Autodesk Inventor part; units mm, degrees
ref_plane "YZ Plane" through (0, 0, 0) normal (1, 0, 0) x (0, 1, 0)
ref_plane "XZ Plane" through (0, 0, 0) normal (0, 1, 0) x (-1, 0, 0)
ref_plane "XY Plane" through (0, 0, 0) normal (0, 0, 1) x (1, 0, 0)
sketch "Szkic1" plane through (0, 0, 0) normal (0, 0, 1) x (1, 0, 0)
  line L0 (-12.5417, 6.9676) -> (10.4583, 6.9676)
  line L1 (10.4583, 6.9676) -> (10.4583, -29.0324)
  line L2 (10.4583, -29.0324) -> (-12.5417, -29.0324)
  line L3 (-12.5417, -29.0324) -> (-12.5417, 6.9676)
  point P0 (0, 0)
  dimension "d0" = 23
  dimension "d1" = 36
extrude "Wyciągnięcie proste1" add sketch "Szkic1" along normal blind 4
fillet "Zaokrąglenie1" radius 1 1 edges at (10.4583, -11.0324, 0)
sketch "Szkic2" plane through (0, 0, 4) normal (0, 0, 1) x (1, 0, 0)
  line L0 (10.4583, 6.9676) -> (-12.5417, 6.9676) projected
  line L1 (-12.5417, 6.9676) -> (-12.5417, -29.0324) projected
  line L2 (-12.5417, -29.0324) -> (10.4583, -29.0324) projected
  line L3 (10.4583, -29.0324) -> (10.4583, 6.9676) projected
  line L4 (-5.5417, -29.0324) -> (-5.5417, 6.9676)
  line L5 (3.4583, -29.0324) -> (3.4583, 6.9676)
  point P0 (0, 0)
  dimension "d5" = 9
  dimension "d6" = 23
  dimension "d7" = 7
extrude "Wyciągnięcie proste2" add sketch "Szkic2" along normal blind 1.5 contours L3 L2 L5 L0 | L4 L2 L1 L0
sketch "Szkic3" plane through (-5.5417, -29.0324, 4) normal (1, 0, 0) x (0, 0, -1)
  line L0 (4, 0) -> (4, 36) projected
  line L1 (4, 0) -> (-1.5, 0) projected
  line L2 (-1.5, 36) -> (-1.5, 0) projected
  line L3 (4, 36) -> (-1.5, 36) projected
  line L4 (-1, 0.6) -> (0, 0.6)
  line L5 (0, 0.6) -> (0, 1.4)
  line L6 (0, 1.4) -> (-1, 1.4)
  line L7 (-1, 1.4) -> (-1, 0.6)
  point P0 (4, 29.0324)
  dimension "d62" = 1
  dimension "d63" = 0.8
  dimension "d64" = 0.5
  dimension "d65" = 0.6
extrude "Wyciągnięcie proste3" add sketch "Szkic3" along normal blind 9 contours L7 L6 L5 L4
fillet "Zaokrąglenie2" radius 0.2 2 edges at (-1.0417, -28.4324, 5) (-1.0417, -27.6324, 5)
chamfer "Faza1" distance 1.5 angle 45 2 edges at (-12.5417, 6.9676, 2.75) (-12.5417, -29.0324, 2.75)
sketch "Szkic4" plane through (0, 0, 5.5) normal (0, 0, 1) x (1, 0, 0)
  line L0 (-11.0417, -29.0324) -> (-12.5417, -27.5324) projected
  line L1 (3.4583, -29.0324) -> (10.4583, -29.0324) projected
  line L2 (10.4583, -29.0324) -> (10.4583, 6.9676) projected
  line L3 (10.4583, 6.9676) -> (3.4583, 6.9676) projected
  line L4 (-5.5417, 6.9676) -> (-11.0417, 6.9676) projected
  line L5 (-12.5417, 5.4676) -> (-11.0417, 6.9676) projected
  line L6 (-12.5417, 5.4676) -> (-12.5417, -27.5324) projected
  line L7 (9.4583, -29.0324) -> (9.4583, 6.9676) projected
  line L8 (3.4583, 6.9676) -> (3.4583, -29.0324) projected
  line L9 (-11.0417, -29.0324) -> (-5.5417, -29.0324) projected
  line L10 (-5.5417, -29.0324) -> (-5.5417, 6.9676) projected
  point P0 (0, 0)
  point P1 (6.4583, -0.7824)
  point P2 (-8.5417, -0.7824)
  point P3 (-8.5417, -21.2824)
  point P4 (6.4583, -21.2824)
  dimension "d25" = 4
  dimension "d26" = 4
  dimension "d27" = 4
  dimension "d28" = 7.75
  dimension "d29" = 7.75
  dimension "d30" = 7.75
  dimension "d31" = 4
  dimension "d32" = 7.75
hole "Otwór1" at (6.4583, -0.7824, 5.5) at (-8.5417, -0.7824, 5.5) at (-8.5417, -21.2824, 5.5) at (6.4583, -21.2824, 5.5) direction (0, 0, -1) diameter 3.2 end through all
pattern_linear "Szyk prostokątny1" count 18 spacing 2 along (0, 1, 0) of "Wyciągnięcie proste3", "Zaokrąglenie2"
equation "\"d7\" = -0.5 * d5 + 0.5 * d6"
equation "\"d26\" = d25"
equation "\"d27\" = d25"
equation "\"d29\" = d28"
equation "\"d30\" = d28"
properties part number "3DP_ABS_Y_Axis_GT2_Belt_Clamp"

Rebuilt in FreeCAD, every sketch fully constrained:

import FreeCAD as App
import Part
import Sketcher
from FreeCAD import Vector
Q = App.Units.Quantity


def edges_at(feature, points):
    """Names of the edges that pass closest to the given points."""
    edges = feature.Shape.Edges
    near = lambda p: min(range(len(edges)), key=lambda i: edges[i].distToShape(Part.Vertex(*p))[0])
    return sorted({f"Edge{near(p) + 1}" for p in points})


def add_polygon(sketch, points):
    """Adds a closed chain of lines whose ends are joined by coincident constraints."""
    first, n = sketch.GeometryCount, len(points)
    for a, b in zip(points, points[1:] + points[:1]):
        sketch.addGeometry(Part.LineSegment(App.Vector(*a, 0), App.Vector(*b, 0)), False)
    for i in range(n):
        sketch.addConstraint(Sketcher.Constraint("Coincident", first + i, 2, first + (i + 1) % n, 1))

doc = App.newDocument("Part")
body = doc.addObject("PartDesign::Body", "Body")

# Sketch on XY plane
sketch1 = body.newObject("Sketcher::SketchObject", "Sketch")
sketch1.AttachmentSupport = (doc.getObject("XY_Plane"), [""])
sketch1.MapMode = "FlatFace"
add_polygon(sketch1, [(10, 7), (-13, 7), (-13, -29), (10, -29)])  # lines 0-3
sketch1.addConstraint(Sketcher.Constraint("Horizontal", 0))
sketch1.addConstraint(Sketcher.Constraint("Vertical", 1))
sketch1.addConstraint(Sketcher.Constraint("Horizontal", 2))
sketch1.addConstraint(Sketcher.Constraint("Vertical", 3))
sketch1.addConstraint(Sketcher.Constraint("DistanceX", 0, 2, 0, 1, Q("23 mm")))
sketch1.addConstraint(Sketcher.Constraint("DistanceY", 1, 2, 1, 1, Q("36 mm")))
sketch1.addConstraint(Sketcher.Constraint("DistanceX", 0, 2, -1, 1, Q("12.5417 mm")))
sketch1.addConstraint(Sketcher.Constraint("DistanceY", -1, 1, 0, 2, Q("6.9676 mm")))
pad1 = body.newObject("PartDesign::Pad", "Pad")
pad1.Profile = sketch1
pad1.Length = 4
doc.recompute()

fillet = body.newObject("PartDesign::Fillet", "Fillet")
fillet.Base = (pad1, edges_at(pad1, [(10.458, -11.032, 0)]))
fillet.Radius = 1

# Sketch on XY plane
sketch2 = body.newObject("Sketcher::SketchObject", "Sketch001")
sketch2.AttachmentSupport = (doc.getObject("XY_Plane"), [""])
sketch2.MapMode = "FlatFace"
sketch2.AttachmentOffset = App.Placement(Vector(0, 0, 4), App.Rotation())
add_polygon(sketch2, [(10, -29), (10, 7), (3, 7), (3, -29)])  # lines 0-3
add_polygon(sketch2, [(-6, -29), (-6, 7), (-13, 7), (-13, -29)])  # lines 4-7
sketch2.addConstraint(Sketcher.Constraint("Vertical", 0))
sketch2.addConstraint(Sketcher.Constraint("Horizontal", 1))
sketch2.addConstraint(Sketcher.Constraint("Vertical", 2))
sketch2.addConstraint(Sketcher.Constraint("Horizontal", 3))
sketch2.addConstraint(Sketcher.Constraint("Vertical", 4))
sketch2.addConstraint(Sketcher.Constraint("Horizontal", 5))
sketch2.addConstraint(Sketcher.Constraint("Vertical", 6))
sketch2.addConstraint(Sketcher.Constraint("Horizontal", 7))
sketch2.addConstraint(Sketcher.Constraint("Horizontal", 1, 2, 4, 2))
sketch2.addConstraint(Sketcher.Constraint("Horizontal", 3, 2, 6, 2))
sketch2.addConstraint(Sketcher.Constraint("Equal", 3, 5))
sketch2.addConstraint(Sketcher.Constraint("DistanceX", 1, 2, 1, 1, Q("7 mm")))
sketch2.addConstraint(Sketcher.Constraint("DistanceX", 4, 2, 1, 2, Q("9 mm")))
sketch2.addConstraint(Sketcher.Constraint("DistanceY", 0, 1, 0, 2, Q("36 mm")))
sketch2.addConstraint(Sketcher.Constraint("DistanceX", -1, 1, 0, 2, Q("10.4583 mm")))
sketch2.addConstraint(Sketcher.Constraint("DistanceY", -1, 1, 0, 2, Q("6.9676 mm")))
pad2 = body.newObject("PartDesign::Pad", "Pad001")
pad2.Profile = sketch2
pad2.Length = 1.5

# Sketch on YZ plane
sketch3 = body.newObject("Sketcher::SketchObject", "Sketch002")
sketch3.AttachmentSupport = (doc.getObject("YZ_Plane"), [""])
sketch3.MapMode = "FlatFace"
sketch3.AttachmentOffset = App.Placement(Vector(0, 0, -5.5417), App.Rotation())
add_polygon(sketch3, [(-27.6, 5), (-28.4, 5), (-28.4, 4), (-27.6, 4)])  # lines 0-3
sketch3.addConstraint(Sketcher.Constraint("Horizontal", 0))
sketch3.addConstraint(Sketcher.Constraint("Vertical", 1))
sketch3.addConstraint(Sketcher.Constraint("Horizontal", 2))
sketch3.addConstraint(Sketcher.Constraint("Vertical", 3))
sketch3.addConstraint(Sketcher.Constraint("DistanceY", 1, 2, 1, 1, Q("1 mm")))
sketch3.addConstraint(Sketcher.Constraint("DistanceX", 0, 2, 0, 1, Q("0.8 mm")))
sketch3.addConstraint(Sketcher.Constraint("DistanceY", -1, 1, 0, 2, Q("5 mm")))
sketch3.addConstraint(Sketcher.Constraint("DistanceX", 0, 2, -1, 1, Q("28.4324 mm")))
pad3 = body.newObject("PartDesign::Pad", "Pad002")
pad3.Profile = sketch3
pad3.Length = 9
doc.recompute()

fillet2 = body.newObject("PartDesign::Fillet", "Fillet001")
fillet2.Base = (pad3, edges_at(pad3, [(-1.042, -28.432, 5), (-1.042, -27.632, 5)]))
fillet2.Radius = 0.2
doc.recompute()

chamfer = body.newObject("PartDesign::Chamfer", "Chamfer")
chamfer.Base = (fillet2, edges_at(fillet2, [(-12.542, 6.968, 2.75), (-12.542, -29.032, 2.75)]))
chamfer.Size = 1.5

# Sketch on XY plane
sketch4 = body.newObject("Sketcher::SketchObject", "Sketch003")
sketch4.AttachmentSupport = (doc.getObject("XY_Plane"), [""])
sketch4.MapMode = "FlatFace"
sketch4.AttachmentOffset = App.Placement(Vector(0, 0, 5.5), App.Rotation())
sketch4.addGeometry(Part.Circle(Vector(6.5, -0.8, 0), Vector(0, 0, 1), 1.6), False)
sketch4.addGeometry(Part.Circle(Vector(-8.5, -0.8, 0), Vector(0, 0, 1), 1.6), False)
sketch4.addGeometry(Part.Circle(Vector(-8.5, -21.3, 0), Vector(0, 0, 1), 1.6), False)
sketch4.addGeometry(Part.Circle(Vector(6.5, -21.3, 0), Vector(0, 0, 1), 1.6), False)
sketch4.addConstraint(Sketcher.Constraint("Equal", 0, 1))
sketch4.addConstraint(Sketcher.Constraint("Equal", 1, 2))
sketch4.addConstraint(Sketcher.Constraint("Equal", 2, 3))
sketch4.addConstraint(Sketcher.Constraint("Horizontal", 0, 3, 1, 3))
sketch4.addConstraint(Sketcher.Constraint("Horizontal", 2, 3, 3, 3))
sketch4.addConstraint(Sketcher.Constraint("Vertical", 1, 3, 2, 3))
sketch4.addConstraint(Sketcher.Constraint("Vertical", 0, 3, 3, 3))
sketch4.addConstraint(Sketcher.Constraint("Diameter", 0, Q("3.2 mm")))
sketch4.addConstraint(Sketcher.Constraint("DistanceX", 1, 3, 0, 3, Q("15 mm")))
sketch4.addConstraint(Sketcher.Constraint("DistanceY", 2, 3, 1, 3, Q("20.5 mm")))
sketch4.addConstraint(Sketcher.Constraint("DistanceX", -1, 1, 0, 3, Q("6.4583 mm")))
sketch4.addConstraint(Sketcher.Constraint("DistanceY", 0, 3, -1, 1, Q("0.7824 mm")))
doc.recompute()
hole = body.newObject("PartDesign::Hole", "Hole")
hole.Profile = sketch4
hole.ThreadType = "None"
hole.Diameter = 3.2
hole.DepthType = "ThroughAll"
doc.recompute()

linearpattern = body.newObject("PartDesign::LinearPattern", "LinearPattern")
linearpattern.Originals = [pad3, fillet2]
linearpattern.Direction = (doc.getObject("Y_Axis"), [""])
linearpattern.Mode = "offset"
linearpattern.Offset = 2
linearpattern.Occurrences = 18
body.Tip = linearpattern

doc.recompute()
